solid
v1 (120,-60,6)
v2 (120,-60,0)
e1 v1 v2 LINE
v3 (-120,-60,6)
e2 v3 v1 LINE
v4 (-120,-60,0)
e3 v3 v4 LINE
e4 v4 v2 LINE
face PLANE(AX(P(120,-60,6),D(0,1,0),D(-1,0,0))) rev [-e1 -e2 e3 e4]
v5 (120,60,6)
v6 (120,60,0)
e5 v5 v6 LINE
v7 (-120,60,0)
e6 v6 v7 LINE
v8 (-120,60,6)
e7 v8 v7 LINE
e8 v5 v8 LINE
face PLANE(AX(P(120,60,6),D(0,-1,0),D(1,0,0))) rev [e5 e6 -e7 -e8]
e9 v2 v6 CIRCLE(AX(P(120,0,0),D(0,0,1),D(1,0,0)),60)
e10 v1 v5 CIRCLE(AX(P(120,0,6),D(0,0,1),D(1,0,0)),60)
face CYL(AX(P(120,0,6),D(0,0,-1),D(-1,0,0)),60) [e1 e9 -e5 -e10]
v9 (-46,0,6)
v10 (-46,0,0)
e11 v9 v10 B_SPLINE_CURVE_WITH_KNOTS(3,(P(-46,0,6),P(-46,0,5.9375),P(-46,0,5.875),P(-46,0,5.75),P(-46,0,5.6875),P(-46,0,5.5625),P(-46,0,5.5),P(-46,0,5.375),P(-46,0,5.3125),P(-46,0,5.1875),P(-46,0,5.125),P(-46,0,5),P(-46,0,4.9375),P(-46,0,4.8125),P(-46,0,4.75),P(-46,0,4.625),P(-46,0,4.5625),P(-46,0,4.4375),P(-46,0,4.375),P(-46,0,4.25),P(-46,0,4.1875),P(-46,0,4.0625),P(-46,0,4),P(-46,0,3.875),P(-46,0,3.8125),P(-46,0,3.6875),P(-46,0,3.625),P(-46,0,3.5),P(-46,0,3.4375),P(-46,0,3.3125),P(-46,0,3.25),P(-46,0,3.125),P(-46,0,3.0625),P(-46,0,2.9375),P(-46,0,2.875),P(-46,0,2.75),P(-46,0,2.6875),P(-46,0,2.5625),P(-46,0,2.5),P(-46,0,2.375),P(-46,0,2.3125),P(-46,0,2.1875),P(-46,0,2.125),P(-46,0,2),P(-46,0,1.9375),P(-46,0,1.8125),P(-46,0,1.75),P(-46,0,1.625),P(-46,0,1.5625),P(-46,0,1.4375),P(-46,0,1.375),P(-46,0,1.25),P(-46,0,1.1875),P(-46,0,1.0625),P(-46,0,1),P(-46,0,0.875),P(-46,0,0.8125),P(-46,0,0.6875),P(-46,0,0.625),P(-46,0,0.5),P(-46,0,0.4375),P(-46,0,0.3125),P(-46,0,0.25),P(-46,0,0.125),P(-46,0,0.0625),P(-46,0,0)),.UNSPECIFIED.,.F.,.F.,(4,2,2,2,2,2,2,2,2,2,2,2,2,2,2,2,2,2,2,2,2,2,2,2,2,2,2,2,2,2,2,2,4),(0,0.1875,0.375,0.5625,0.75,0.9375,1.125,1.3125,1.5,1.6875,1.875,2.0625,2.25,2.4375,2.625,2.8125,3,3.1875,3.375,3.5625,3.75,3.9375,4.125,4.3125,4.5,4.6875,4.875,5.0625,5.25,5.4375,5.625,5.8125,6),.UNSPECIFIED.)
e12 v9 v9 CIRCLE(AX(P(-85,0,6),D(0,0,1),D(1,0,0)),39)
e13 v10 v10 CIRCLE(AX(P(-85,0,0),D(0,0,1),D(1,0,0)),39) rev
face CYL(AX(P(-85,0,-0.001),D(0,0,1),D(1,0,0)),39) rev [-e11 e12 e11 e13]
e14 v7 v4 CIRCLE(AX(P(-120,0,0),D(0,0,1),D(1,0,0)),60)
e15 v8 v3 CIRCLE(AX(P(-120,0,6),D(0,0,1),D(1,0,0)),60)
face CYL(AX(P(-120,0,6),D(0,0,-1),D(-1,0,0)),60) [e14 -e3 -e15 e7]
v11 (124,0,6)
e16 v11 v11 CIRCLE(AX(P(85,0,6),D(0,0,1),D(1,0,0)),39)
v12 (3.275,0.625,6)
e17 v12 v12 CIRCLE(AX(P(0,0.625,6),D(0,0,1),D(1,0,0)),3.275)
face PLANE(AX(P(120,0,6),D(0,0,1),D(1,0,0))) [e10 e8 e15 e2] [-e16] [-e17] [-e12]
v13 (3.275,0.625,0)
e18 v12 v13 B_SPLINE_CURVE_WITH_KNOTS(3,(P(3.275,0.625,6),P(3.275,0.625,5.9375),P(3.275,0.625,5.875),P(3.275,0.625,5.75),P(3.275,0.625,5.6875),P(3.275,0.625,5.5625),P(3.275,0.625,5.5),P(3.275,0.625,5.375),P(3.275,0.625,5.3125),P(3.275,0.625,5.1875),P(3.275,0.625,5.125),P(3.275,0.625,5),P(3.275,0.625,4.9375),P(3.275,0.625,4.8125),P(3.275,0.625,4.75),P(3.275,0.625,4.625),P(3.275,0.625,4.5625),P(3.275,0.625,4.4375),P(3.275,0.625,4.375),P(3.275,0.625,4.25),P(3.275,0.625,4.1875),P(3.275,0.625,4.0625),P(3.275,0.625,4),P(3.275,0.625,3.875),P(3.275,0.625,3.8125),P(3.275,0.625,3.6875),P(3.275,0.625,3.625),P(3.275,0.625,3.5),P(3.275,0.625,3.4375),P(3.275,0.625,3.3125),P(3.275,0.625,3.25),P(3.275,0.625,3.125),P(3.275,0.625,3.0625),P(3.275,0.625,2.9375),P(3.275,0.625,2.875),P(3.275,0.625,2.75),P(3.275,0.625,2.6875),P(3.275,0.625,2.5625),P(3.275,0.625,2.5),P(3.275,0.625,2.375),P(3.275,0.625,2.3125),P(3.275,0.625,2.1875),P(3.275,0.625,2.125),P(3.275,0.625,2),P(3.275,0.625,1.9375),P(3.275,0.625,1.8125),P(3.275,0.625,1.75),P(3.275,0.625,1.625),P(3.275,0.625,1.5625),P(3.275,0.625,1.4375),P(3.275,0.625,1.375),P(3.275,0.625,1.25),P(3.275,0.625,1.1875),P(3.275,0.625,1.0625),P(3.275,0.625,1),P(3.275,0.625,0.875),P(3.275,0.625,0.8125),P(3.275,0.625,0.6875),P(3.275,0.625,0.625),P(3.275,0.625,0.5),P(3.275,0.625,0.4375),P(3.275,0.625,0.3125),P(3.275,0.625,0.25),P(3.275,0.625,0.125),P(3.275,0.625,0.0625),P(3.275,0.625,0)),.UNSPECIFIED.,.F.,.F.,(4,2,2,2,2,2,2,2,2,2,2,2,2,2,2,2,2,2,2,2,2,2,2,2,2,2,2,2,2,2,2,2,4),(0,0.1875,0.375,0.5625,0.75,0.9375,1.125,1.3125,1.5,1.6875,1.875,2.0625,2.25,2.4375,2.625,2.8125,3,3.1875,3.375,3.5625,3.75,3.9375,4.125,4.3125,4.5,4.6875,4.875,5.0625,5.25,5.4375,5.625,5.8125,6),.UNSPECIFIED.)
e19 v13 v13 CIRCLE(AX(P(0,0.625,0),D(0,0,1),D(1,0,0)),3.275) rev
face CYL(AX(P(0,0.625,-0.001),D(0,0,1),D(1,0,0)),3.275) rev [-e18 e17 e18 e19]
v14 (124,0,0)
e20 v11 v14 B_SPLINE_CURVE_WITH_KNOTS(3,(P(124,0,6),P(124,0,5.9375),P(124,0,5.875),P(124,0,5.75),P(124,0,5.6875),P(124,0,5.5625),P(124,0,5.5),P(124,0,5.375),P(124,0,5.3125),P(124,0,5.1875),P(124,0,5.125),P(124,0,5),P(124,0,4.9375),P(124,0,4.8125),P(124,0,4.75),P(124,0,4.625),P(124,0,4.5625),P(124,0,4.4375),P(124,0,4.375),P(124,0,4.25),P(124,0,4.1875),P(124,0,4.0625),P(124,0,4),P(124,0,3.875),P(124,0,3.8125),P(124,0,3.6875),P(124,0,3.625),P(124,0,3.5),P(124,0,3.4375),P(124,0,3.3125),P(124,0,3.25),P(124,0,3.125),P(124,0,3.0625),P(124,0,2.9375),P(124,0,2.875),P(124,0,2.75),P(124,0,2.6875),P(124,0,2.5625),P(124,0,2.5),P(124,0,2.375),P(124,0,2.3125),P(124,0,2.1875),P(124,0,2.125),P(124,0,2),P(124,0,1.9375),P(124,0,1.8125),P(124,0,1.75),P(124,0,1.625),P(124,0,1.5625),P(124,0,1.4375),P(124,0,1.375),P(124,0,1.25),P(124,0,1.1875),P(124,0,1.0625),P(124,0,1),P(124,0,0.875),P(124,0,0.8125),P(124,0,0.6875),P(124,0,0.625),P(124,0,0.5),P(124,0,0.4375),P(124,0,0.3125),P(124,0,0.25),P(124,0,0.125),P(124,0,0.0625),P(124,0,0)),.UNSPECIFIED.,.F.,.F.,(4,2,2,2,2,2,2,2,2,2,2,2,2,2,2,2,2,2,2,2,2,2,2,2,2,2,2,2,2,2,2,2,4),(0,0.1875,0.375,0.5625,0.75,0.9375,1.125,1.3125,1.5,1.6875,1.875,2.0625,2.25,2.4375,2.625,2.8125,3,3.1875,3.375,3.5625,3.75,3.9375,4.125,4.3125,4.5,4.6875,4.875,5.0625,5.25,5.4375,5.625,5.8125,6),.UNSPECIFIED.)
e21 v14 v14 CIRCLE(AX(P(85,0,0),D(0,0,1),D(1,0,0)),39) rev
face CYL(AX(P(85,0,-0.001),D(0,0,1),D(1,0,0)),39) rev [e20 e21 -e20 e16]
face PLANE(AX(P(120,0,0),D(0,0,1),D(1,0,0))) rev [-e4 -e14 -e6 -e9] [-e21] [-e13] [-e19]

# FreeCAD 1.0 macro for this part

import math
import FreeCAD as App
import Part
import Sketcher

doc = App.newDocument("Part")
body = doc.addObject("PartDesign::Body", "Body")

sketch1 = body.newObject("Sketcher::SketchObject", "Sketch")
sketch1.AttachmentSupport = (doc.getObject("XY_Plane"), [""])
sketch1.MapMode = "FlatFace"
sketch1.addGeometry(Part.LineSegment(App.Vector(-120, -60, 0), App.Vector(120, -60, 0)), False)
sketch1.addGeometry(Part.ArcOfCircle(Part.Circle(App.Vector(120, 0, 0), App.Vector(0, 0, 1), 60), math.radians(-90), math.radians(90)), False)
sketch1.addGeometry(Part.LineSegment(App.Vector(120, 60, 0), App.Vector(-120, 60, 0)), False)
sketch1.addGeometry(Part.ArcOfCircle(Part.Circle(App.Vector(-120, 0, 0), App.Vector(0, 0, 1), 60), math.radians(90), math.radians(270)), False)
sketch1.addConstraint(Sketcher.Constraint("Tangent", 0, 2, 1, 1))
sketch1.addConstraint(Sketcher.Constraint("Tangent", 1, 2, 2, 1))
sketch1.addConstraint(Sketcher.Constraint("Tangent", 2, 2, 3, 1))
sketch1.addConstraint(Sketcher.Constraint("Tangent", 3, 2, 0, 1))
sketch1.addConstraint(Sketcher.Constraint("Horizontal", 0))
sketch1.addConstraint(Sketcher.Constraint("Horizontal", 2))
sketch1.addConstraint(Sketcher.Constraint("Symmetric", 1, 3, 3, 3, -1, 1))
sketch1.addConstraint(Sketcher.Constraint("Radius", 1, 60.0))
sketch1.addConstraint(Sketcher.Constraint("DistanceX", 0, 1, 0, 2, 240.0))
pad1 = body.newObject("PartDesign::Pad", "Pad")
pad1.Profile = sketch1
pad1.Length = 6

sketch2 = body.newObject("Sketcher::SketchObject", "Sketch001")
sketch2.AttachmentSupport = (doc.getObject("XY_Plane"), [""])
sketch2.MapMode = "FlatFace"
sketch2.AttachmentOffset = App.Placement(App.Vector(0, 0, 6), App.Rotation())
sketch2.addGeometry(Part.Circle(App.Vector(0, 0.625, 0), App.Vector(0, 0, 1), 3.275), False)
sketch2.addConstraint(Sketcher.Constraint("PointOnObject", 0, 3, -2))
sketch2.addConstraint(Sketcher.Constraint("Diameter", 0, 6.55))
sketch2.addConstraint(Sketcher.Constraint("DistanceY", -1, 1, 0, 3, 0.625))
pocket1 = body.newObject("PartDesign::Pocket", "Pocket")
pocket1.Profile = sketch2
pocket1.Type = "UpToFirst"

sketch3 = body.newObject("Sketcher::SketchObject", "Sketch002")
sketch3.AttachmentSupport = (doc.getObject("XY_Plane"), [""])
sketch3.MapMode = "FlatFace"
sketch3.AttachmentOffset = App.Placement(App.Vector(0, 0, 6), App.Rotation())
sketch3.addGeometry(Part.Circle(App.Vector(-85, 0, 0), App.Vector(0, 0, 1), 39), False)
sketch3.addConstraint(Sketcher.Constraint("PointOnObject", 0, 3, -1))
sketch3.addConstraint(Sketcher.Constraint("Diameter", 0, 78.0))
sketch3.addConstraint(Sketcher.Constraint("DistanceX", 0, 3, -1, 1, 85.0))
pocket2 = body.newObject("PartDesign::Pocket", "Pocket001")
pocket2.Profile = sketch3
pocket2.Type = "UpToFirst"

sketch4 = body.newObject("Sketcher::SketchObject", "Sketch003")
sketch4.AttachmentSupport = (doc.getObject("XY_Plane"), [""])
sketch4.MapMode = "FlatFace"
sketch4.AttachmentOffset = App.Placement(App.Vector(0, 0, 6), App.Rotation())
sketch4.addGeometry(Part.Circle(App.Vector(85, 0, 0), App.Vector(0, 0, 1), 39), False)
sketch4.addConstraint(Sketcher.Constraint("PointOnObject", 0, 3, -1))
sketch4.addConstraint(Sketcher.Constraint("Diameter", 0, 78.0))
sketch4.addConstraint(Sketcher.Constraint("DistanceX", -1, 1, 0, 3, 85.0))
pocket3 = body.newObject("PartDesign::Pocket", "Pocket002")
pocket3.Profile = sketch4
pocket3.Type = "UpToFirst"

doc.recompute()
